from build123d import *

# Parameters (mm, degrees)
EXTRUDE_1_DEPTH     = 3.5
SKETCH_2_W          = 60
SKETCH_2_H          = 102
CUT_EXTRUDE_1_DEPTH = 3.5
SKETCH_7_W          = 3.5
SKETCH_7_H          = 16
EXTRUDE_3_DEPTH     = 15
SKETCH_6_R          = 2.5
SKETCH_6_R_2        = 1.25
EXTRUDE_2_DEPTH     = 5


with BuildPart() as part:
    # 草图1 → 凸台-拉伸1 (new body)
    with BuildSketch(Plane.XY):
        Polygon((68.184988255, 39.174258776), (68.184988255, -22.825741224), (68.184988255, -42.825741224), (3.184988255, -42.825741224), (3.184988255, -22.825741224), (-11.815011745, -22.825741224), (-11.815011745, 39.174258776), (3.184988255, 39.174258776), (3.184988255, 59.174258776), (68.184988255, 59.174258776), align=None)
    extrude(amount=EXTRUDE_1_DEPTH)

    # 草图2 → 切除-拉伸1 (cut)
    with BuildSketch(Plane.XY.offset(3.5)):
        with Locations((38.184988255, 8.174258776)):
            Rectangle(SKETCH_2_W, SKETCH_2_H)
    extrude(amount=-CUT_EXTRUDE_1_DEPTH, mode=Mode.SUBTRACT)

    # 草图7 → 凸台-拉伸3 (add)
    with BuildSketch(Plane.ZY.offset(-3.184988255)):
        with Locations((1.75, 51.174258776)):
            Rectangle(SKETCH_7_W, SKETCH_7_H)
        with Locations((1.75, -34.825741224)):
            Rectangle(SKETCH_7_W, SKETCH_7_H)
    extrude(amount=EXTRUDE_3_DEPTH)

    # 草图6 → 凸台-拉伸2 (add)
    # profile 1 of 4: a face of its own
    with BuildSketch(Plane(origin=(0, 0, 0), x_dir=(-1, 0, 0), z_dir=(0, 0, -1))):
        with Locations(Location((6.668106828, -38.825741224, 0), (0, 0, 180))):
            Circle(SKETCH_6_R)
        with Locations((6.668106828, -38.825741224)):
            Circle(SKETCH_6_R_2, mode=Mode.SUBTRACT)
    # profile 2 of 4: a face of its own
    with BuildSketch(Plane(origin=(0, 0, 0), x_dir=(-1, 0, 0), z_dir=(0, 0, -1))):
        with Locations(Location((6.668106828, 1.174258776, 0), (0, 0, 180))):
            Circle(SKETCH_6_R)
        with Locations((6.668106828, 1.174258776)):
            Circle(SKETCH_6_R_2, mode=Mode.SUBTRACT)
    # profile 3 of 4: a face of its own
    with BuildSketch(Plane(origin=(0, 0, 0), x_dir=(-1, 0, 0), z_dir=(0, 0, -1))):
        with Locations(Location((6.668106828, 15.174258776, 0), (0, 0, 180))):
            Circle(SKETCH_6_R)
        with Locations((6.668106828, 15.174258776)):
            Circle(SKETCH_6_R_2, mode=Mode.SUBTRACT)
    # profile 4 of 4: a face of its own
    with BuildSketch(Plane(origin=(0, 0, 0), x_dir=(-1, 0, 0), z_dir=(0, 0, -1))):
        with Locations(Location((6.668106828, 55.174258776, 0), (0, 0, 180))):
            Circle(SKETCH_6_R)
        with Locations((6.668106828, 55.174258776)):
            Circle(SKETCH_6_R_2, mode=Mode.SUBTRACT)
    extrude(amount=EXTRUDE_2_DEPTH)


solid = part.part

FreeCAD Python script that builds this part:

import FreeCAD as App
import Part
import Sketcher

V = App.Vector
Q = App.Units.Quantity


def add_polygon(sketch, points):
    """Adds a closed chain of lines whose ends are joined by coincident constraints."""
    first, n = sketch.GeometryCount, len(points)
    for a, b in zip(points, points[1:] + points[:1]):
        sketch.addGeometry(Part.LineSegment(App.Vector(*a, 0), App.Vector(*b, 0)), False)
    for i in range(n):
        sketch.addConstraint(Sketcher.Constraint("Coincident", first + i, 2, first + (i + 1) % n, 1))

doc = App.newDocument("Part")
params = doc.addObject("Spreadsheet::Sheet", "Params")
for row, (alias, value) in enumerate([
    ("sketch1_width", "65 mm"),
    ("sketch1_width2", "15 mm"),
    ("sketch1_height", "102 mm"),
    ("sketch1_height2", "20 mm"),
    ("pad1_length", "3.5 mm"),
    ("sketch2_width", "60 mm"),
    ("sketch2_height", "102 mm"),
    ("pocket1_length", "3.5 mm"),
    ("sketch3_width", "16 mm"),
    ("sketch3_height", "3.5 mm"),
    ("pad2_length", "15 mm"),
    ("sketch4_diameter", "5 mm"),
    ("sketch4_diameter2", "2.5 mm"),
    ("pad3_length", "5 mm"),
], start=1):
    params.set(f"A{row}", alias)
    params.set(f"B{row}", "=" + value)
    params.setAlias(f"B{row}", alias)

body = doc.addObject("PartDesign::Body", "Body")

sketch1 = doc.addObject("Sketcher::SketchObject", "Sketch")
body.addObject(sketch1)
sketch1.AttachmentSupport = (doc.XY_Plane, [""])
sketch1.MapMode = "FlatFace"
add_polygon(sketch1, [(68, -43), (68, 59), (3, 59), (3, 39), (-12, 39), (-12, -23), (3, -23), (3, -43)])
sketch1.addConstraint([
    Sketcher.Constraint("Vertical", 0),
    Sketcher.Constraint("Horizontal", 1),
    Sketcher.Constraint("Vertical", 2),
    Sketcher.Constraint("Horizontal", 3),
    Sketcher.Constraint("Vertical", 4),
    Sketcher.Constraint("Horizontal", 5),
    Sketcher.Constraint("Vertical", 6),
    Sketcher.Constraint("Horizontal", 7),
    Sketcher.Constraint("Vertical", 2, 2, 5, 2),
    Sketcher.Constraint("Equal", 2, 6),
    Sketcher.Constraint("DistanceX", 1, 2, 1, 1, Q("65 mm")),
    Sketcher.Constraint("DistanceX", 3, 2, 3, 1, Q("15 mm")),
    Sketcher.Constraint("DistanceY", 0, 1, 0, 2, Q("102 mm")),
    Sketcher.Constraint("DistanceY", 2, 2, 2, 1, Q("20 mm")),
    Sketcher.Constraint("DistanceX", -1, 1, 0, 2, Q("68.184988 mm")),
    Sketcher.Constraint("DistanceY", -1, 1, 0, 2, Q("59.174259 mm")),
])
sketch1.setExpression("Constraints[18]", "Params.sketch1_width")
sketch1.setExpression("Constraints[19]", "Params.sketch1_width2")
sketch1.setExpression("Constraints[20]", "Params.sketch1_height")
sketch1.setExpression("Constraints[21]", "Params.sketch1_height2")
pad1 = doc.addObject("PartDesign::Pad", "Pad")
body.addObject(pad1)
pad1.Profile = sketch1
pad1.setExpression("Length", "Params.pad1_length")

sketch2 = doc.addObject("Sketcher::SketchObject", "Sketch001")
body.addObject(sketch2)
sketch2.AttachmentSupport = (doc.XY_Plane, [""])
sketch2.MapMode = "FlatFace"
sketch2.AttachmentOffset = App.Placement(V(0, 0, 3.5), App.Rotation())
add_polygon(sketch2, [(8, 59), (8, -43), (68, -43), (68, 59)])
sketch2.addConstraint([
    Sketcher.Constraint("Vertical", 0),
    Sketcher.Constraint("Horizontal", 1),
    Sketcher.Constraint("Vertical", 2),
    Sketcher.Constraint("Horizontal", 3),
    Sketcher.Constraint("DistanceX", 1, 1, 1, 2, Q("60 mm")),
    Sketcher.Constraint("DistanceY", 0, 2, 0, 1, Q("102 mm")),
    Sketcher.Constraint("DistanceX", -1, 1, 0, 2, Q("8.184988 mm")),
    Sketcher.Constraint("DistanceY", 0, 2, -1, 1, Q("42.825741 mm")),
])
sketch2.setExpression("Constraints[8]", "Params.sketch2_width")
sketch2.setExpression("Constraints[9]", "Params.sketch2_height")
pocket1 = doc.addObject("PartDesign::Pocket", "Pocket")
body.addObject(pocket1)
pocket1.Profile = sketch2
pocket1.setExpression("Length", "Params.pocket1_length")

sketch3 = doc.addObject("Sketcher::SketchObject", "Sketch002")
body.addObject(sketch3)
sketch3.AttachmentSupport = (doc.YZ_Plane, [""])
sketch3.MapMode = "FlatFace"
sketch3.AttachmentOffset = App.Placement(V(0, 0, 3.184988), App.Rotation())
add_polygon(sketch3, [(59.2, 0), (43.2, 0), (43.2, 3.5), (59.2, 3.5)])
add_polygon(sketch3, [(-26.8, 0), (-42.8, 0), (-42.8, 3.5), (-26.8, 3.5)])
sketch3.addConstraint([
    Sketcher.Constraint("Horizontal", 0),
    Sketcher.Constraint("Vertical", 1),
    Sketcher.Constraint("Horizontal", 2),
    Sketcher.Constraint("Vertical", 3),
    Sketcher.Constraint("Horizontal", 4),
    Sketcher.Constraint("Vertical", 5),
    Sketcher.Constraint("Horizontal", 6),
    Sketcher.Constraint("Vertical", 7),
    Sketcher.Constraint("PointOnObject", 0, 2, -1),
    Sketcher.Constraint("PointOnObject", 4, 2, -1),
    Sketcher.Constraint("Horizontal", 2, 2, 5, 2),
    Sketcher.Constraint("Equal", 2, 4),
    Sketcher.Constraint("DistanceX", 0, 2, 0, 1, Q("16 mm")),
    Sketcher.Constraint("DistanceY", 1, 1, 1, 2, Q("3.5 mm")),
    Sketcher.Constraint("DistanceX", 4, 2, 0, 2, Q("86 mm")),
    Sketcher.Constraint("DistanceX", -1, 1, 0, 2, Q("43.174259 mm")),
])
sketch3.setExpression("Constraints[20]", "Params.sketch3_width")
sketch3.setExpression("Constraints[21]", "Params.sketch3_height")
pad2 = doc.addObject("PartDesign::Pad", "Pad001")
body.addObject(pad2)
pad2.Profile = sketch3
pad2.setExpression("Length", "Params.pad2_length")
pad2.Reversed = True

sketch4 = doc.addObject("Sketcher::SketchObject", "Sketch003")
body.addObject(sketch4)
sketch4.AttachmentSupport = (doc.XY_Plane, [""])
sketch4.MapMode = "FlatFace"
sketch4.addGeometry([
    Part.Circle(V(-6.7, -38.8, 0), V(0, 0, 1), 2.5),
    Part.Circle(V(-6.7, -38.8, 0), V(0, 0, 1), 1.2),
    Part.Circle(V(-6.7, 1.2, 0), V(0, 0, 1), 2.5),
    Part.Circle(V(-6.7, 1.2, 0), V(0, 0, 1), 1.2),
    Part.Circle(V(-6.7, 15.2, 0), V(0, 0, 1), 2.5),
    Part.Circle(V(-6.7, 15.2, 0), V(0, 0, 1), 1.2),
    Part.Circle(V(-6.7, 55.2, 0), V(0, 0, 1), 2.5),
    Part.Circle(V(-6.7, 55.2, 0), V(0, 0, 1), 1.2),
], False)
sketch4.addConstraint([
    Sketcher.Constraint("Coincident", 1, 3, 0, 3),
    Sketcher.Constraint("Coincident", 3, 3, 2, 3),
    Sketcher.Constraint("Coincident", 5, 3, 4, 3),
    Sketcher.Constraint("Coincident", 7, 3, 6, 3),
    Sketcher.Constraint("Equal", 0, 2),
    Sketcher.Constraint("Equal", 1, 3),
    Sketcher.Constraint("Equal", 2, 4),
    Sketcher.Constraint("Equal", 3, 5),
    Sketcher.Constraint("Equal", 4, 6),
    Sketcher.Constraint("Equal", 5, 7),
    Sketcher.Constraint("Vertical", 1, 3, 2, 3),
    Sketcher.Constraint("Vertical", 3, 3, 4, 3),
    Sketcher.Constraint("Vertical", 5, 3, 6, 3),
    Sketcher.Constraint("Diameter", 0, Q("5 mm")),
    Sketcher.Constraint("Diameter", 1, Q("2.5 mm")),
    Sketcher.Constraint("DistanceY", 0, 3, 2, 3, Q("40 mm")),
    Sketcher.Constraint("DistanceY", 2, 3, 4, 3, Q("14 mm")),
    Sketcher.Constraint("DistanceY", 4, 3, 6, 3, Q("40 mm")),
    Sketcher.Constraint("DistanceY", 0, 3, -1, 1, Q("38.825741 mm")),
    Sketcher.Constraint("DistanceX", 0, 3, -1, 1, Q("6.668107 mm")),
])
sketch4.setExpression("Constraints[13]", "Params.sketch4_diameter")
sketch4.setExpression("Constraints[14]", "Params.sketch4_diameter2")
pad3 = doc.addObject("PartDesign::Pad", "Pad002")
body.addObject(pad3)
pad3.Profile = sketch4
pad3.setExpression("Length", "Params.pad3_length")
pad3.Reversed = True

doc.recompute()
